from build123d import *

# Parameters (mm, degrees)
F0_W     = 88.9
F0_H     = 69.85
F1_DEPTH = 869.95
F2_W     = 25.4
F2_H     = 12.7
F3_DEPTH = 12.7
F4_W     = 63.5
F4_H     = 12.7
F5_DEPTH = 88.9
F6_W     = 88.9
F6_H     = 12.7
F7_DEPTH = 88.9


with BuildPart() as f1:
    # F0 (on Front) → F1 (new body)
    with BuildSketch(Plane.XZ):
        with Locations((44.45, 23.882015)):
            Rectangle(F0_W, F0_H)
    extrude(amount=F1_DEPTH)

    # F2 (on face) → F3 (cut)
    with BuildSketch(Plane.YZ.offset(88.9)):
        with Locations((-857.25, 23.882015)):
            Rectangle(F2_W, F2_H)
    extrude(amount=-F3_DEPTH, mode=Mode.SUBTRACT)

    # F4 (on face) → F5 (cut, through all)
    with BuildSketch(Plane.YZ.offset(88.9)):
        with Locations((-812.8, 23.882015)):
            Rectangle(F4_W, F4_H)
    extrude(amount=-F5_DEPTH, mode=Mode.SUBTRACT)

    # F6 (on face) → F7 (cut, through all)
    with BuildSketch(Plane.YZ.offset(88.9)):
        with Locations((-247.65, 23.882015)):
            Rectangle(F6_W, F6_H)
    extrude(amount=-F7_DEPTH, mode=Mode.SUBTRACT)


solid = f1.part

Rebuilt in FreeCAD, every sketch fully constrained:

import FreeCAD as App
import Part
import Sketcher
from FreeCAD import Vector
Q = App.Units.Quantity


def add_polygon(sketch, points):
    """Adds a closed chain of lines whose ends are joined by coincident constraints."""
    first, n = sketch.GeometryCount, len(points)
    for a, b in zip(points, points[1:] + points[:1]):
        sketch.addGeometry(Part.LineSegment(App.Vector(*a, 0), App.Vector(*b, 0)), False)
    for i in range(n):
        sketch.addConstraint(Sketcher.Constraint("Coincident", first + i, 2, first + (i + 1) % n, 1))

doc = App.newDocument("Part")
params = doc.addObject("Spreadsheet::Sheet", "Params")
for row, (alias, value) in enumerate([
    ("sketch1_width", "3.5 in"),
    ("sketch1_height", "2.75 in"),
    ("pad1_length", "34.25 in"),
    ("sketch2_width", "1 in"),
    ("sketch2_height", "0.5 in"),
    ("pocket1_length", "0.5 in"),
    ("sketch3_width", "2.5 in"),
    ("sketch3_height", "0.5 in"),
    ("sketch4_width", "3.5 in"),
    ("sketch4_height", "0.5 in"),
], start=1):
    params.set(f"A{row}", alias)
    params.set(f"B{row}", "=" + value)
    params.setAlias(f"B{row}", alias)

body = doc.addObject("PartDesign::Body", "Body")

sketch1 = body.newObject("Sketcher::SketchObject", "Sketch")
sketch1.AttachmentSupport = (doc.getObject("XZ_Plane"), [""])
sketch1.MapMode = "FlatFace"
add_polygon(sketch1, [(0, 59), (0, -11), (89, -11), (89, 59)])
sketch1.addConstraint(Sketcher.Constraint("Vertical", 0))
sketch1.addConstraint(Sketcher.Constraint("Horizontal", 1))
sketch1.addConstraint(Sketcher.Constraint("Vertical", 2))
sketch1.addConstraint(Sketcher.Constraint("Horizontal", 3))
sketch1.addConstraint(Sketcher.Constraint("PointOnObject", 0, 2, -2))
sketch1.addConstraint(Sketcher.Constraint("DistanceX", 1, 1, 1, 2, Q("3.5 in")))
sketch1.addConstraint(Sketcher.Constraint("DistanceY", 0, 2, 0, 1, Q("2.75 in")))
sketch1.addConstraint(Sketcher.Constraint("DistanceY", 0, 2, -1, 1, 11.042985))
sketch1.setExpression("Constraints[9]", "Params.sketch1_width")
sketch1.setExpression("Constraints[10]", "Params.sketch1_height")
pad1 = body.newObject("PartDesign::Pad", "Pad")
pad1.Profile = sketch1
pad1.setExpression("Length", "Params.pad1_length")

sketch2 = body.newObject("Sketcher::SketchObject", "Sketch001")
sketch2.AttachmentSupport = (doc.getObject("YZ_Plane"), [""])
sketch2.MapMode = "FlatFace"
sketch2.AttachmentOffset = App.Placement(Vector(0, 0, 3.5 * 25.4), App.Rotation())
add_polygon(sketch2, [(-870, 30), (-870, 18), (-845, 18), (-845, 30)])
sketch2.addConstraint(Sketcher.Constraint("Vertical", 0))
sketch2.addConstraint(Sketcher.Constraint("Horizontal", 1))
sketch2.addConstraint(Sketcher.Constraint("Vertical", 2))
sketch2.addConstraint(Sketcher.Constraint("Horizontal", 3))
sketch2.addConstraint(Sketcher.Constraint("DistanceX", 1, 1, 1, 2, Q("1 in")))
sketch2.addConstraint(Sketcher.Constraint("DistanceY", 0, 2, 0, 1, Q("0.5 in")))
sketch2.addConstraint(Sketcher.Constraint("DistanceX", 0, 2, -1, 1, Q("34.25 in")))
sketch2.addConstraint(Sketcher.Constraint("DistanceY", -1, 1, 0, 2, 17.532015))
sketch2.setExpression("Constraints[8]", "Params.sketch2_width")
sketch2.setExpression("Constraints[9]", "Params.sketch2_height")
pocket1 = body.newObject("PartDesign::Pocket", "Pocket")
pocket1.Profile = sketch2
pocket1.setExpression("Length", "Params.pocket1_length")

sketch3 = body.newObject("Sketcher::SketchObject", "Sketch002")
sketch3.AttachmentSupport = (doc.getObject("YZ_Plane"), [""])
sketch3.MapMode = "FlatFace"
sketch3.AttachmentOffset = App.Placement(Vector(0, 0, 3.5 * 25.4), App.Rotation())
add_polygon(sketch3, [(-845, 30), (-845, 18), (-781, 18), (-781, 30)])
sketch3.addConstraint(Sketcher.Constraint("Vertical", 0))
sketch3.addConstraint(Sketcher.Constraint("Horizontal", 1))
sketch3.addConstraint(Sketcher.Constraint("Vertical", 2))
sketch3.addConstraint(Sketcher.Constraint("Horizontal", 3))
sketch3.addConstraint(Sketcher.Constraint("DistanceX", 1, 1, 1, 2, Q("2.5 in")))
sketch3.addConstraint(Sketcher.Constraint("DistanceY", 0, 2, 0, 1, Q("0.5 in")))
sketch3.addConstraint(Sketcher.Constraint("DistanceX", 0, 2, -1, 1, Q("33.25 in")))
sketch3.addConstraint(Sketcher.Constraint("DistanceY", -1, 1, 0, 2, 17.532015))
sketch3.setExpression("Constraints[8]", "Params.sketch3_width")
sketch3.setExpression("Constraints[9]", "Params.sketch3_height")
pocket2 = body.newObject("PartDesign::Pocket", "Pocket001")
pocket2.Profile = sketch3
pocket2.Type = "ThroughAll"

sketch4 = body.newObject("Sketcher::SketchObject", "Sketch003")
sketch4.AttachmentSupport = (doc.getObject("YZ_Plane"), [""])
sketch4.MapMode = "FlatFace"
sketch4.AttachmentOffset = App.Placement(Vector(0, 0, 3.5 * 25.4), App.Rotation())
add_polygon(sketch4, [(-292, 30), (-292, 18), (-203, 18), (-203, 30)])
sketch4.addConstraint(Sketcher.Constraint("Vertical", 0))
sketch4.addConstraint(Sketcher.Constraint("Horizontal", 1))
sketch4.addConstraint(Sketcher.Constraint("Vertical", 2))
sketch4.addConstraint(Sketcher.Constraint("Horizontal", 3))
sketch4.addConstraint(Sketcher.Constraint("DistanceX", 1, 1, 1, 2, Q("3.5 in")))
sketch4.addConstraint(Sketcher.Constraint("DistanceY", 0, 2, 0, 1, Q("0.5 in")))
sketch4.addConstraint(Sketcher.Constraint("DistanceX", 1, 2, -1, 1, Q("8 in")))
sketch4.addConstraint(Sketcher.Constraint("DistanceY", -1, 1, 0, 2, 17.532015))
sketch4.setExpression("Constraints[8]", "Params.sketch4_width")
sketch4.setExpression("Constraints[9]", "Params.sketch4_height")
pocket3 = body.newObject("PartDesign::Pocket", "Pocket002")
pocket3.Profile = sketch4
pocket3.Type = "ThroughAll"

doc.recompute()
